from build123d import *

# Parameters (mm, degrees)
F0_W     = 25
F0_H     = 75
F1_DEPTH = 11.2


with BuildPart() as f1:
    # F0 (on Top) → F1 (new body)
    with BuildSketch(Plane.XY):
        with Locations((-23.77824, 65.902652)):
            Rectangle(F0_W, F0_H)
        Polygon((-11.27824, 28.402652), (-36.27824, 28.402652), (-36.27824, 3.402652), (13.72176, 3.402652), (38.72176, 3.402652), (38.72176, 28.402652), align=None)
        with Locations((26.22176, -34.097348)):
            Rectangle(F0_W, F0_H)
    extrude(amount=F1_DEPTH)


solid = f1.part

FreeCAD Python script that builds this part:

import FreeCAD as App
import Part
import Sketcher

V = App.Vector
Q = App.Units.Quantity

doc = App.newDocument("Part")
body = doc.addObject("PartDesign::Body", "Body")

sketch1 = body.newObject("Sketcher::SketchObject", "Sketch")
sketch1.AttachmentSupport = (doc.getObject("XY_Plane"), [""])
sketch1.MapMode = "FlatFace"
sketch1.addGeometry(Part.LineSegment(V(-36, 103, 0), V(-36, 3, 0)), False)
sketch1.addGeometry(Part.LineSegment(V(-36, 3, 0), V(14, 3, 0)), False)
sketch1.addGeometry(Part.LineSegment(V(14, 3, 0), V(14, -72, 0)), False)
sketch1.addGeometry(Part.LineSegment(V(14, -72, 0), V(39, -72, 0)), False)
sketch1.addGeometry(Part.LineSegment(V(39, -72, 0), V(39, 28, 0)), False)
sketch1.addGeometry(Part.LineSegment(V(39, 28, 0), V(-11, 28, 0)), False)
sketch1.addGeometry(Part.LineSegment(V(-11, 28, 0), V(-11, 103, 0)), False)
sketch1.addGeometry(Part.LineSegment(V(-11, 103, 0), V(-36, 103, 0)), False)
sketch1.addConstraint(Sketcher.Constraint("Coincident", 0, 2, 1, 1))
sketch1.addConstraint(Sketcher.Constraint("Coincident", 1, 2, 2, 1))
sketch1.addConstraint(Sketcher.Constraint("Coincident", 2, 2, 3, 1))
sketch1.addConstraint(Sketcher.Constraint("Coincident", 3, 2, 4, 1))
sketch1.addConstraint(Sketcher.Constraint("Coincident", 4, 2, 5, 1))
sketch1.addConstraint(Sketcher.Constraint("Coincident", 5, 2, 6, 1))
sketch1.addConstraint(Sketcher.Constraint("Coincident", 6, 2, 7, 1))
sketch1.addConstraint(Sketcher.Constraint("Coincident", 7, 2, 0, 1))
sketch1.addConstraint(Sketcher.Constraint("Vertical", 0))
sketch1.addConstraint(Sketcher.Constraint("Horizontal", 1))
sketch1.addConstraint(Sketcher.Constraint("Vertical", 2))
sketch1.addConstraint(Sketcher.Constraint("Horizontal", 3))
sketch1.addConstraint(Sketcher.Constraint("Vertical", 4))
sketch1.addConstraint(Sketcher.Constraint("Horizontal", 5))
sketch1.addConstraint(Sketcher.Constraint("Vertical", 6))
sketch1.addConstraint(Sketcher.Constraint("Horizontal", 7))
sketch1.addConstraint(Sketcher.Constraint("Equal", 1, 5))
sketch1.addConstraint(Sketcher.Constraint("Equal", 0, 4))
sketch1.addConstraint(Sketcher.Constraint("DistanceX", 1, 1, 1, 2, Q("50 mm")))
sketch1.addConstraint(Sketcher.Constraint("DistanceX", 3, 1, 3, 2, Q("25 mm")))
sketch1.addConstraint(Sketcher.Constraint("DistanceY", 0, 2, 0, 1, Q("100 mm")))
sketch1.addConstraint(Sketcher.Constraint("DistanceY", 2, 2, 2, 1, Q("75 mm")))
sketch1.addConstraint(Sketcher.Constraint("DistanceX", 0, 2, -1, 1, Q("36.27824 mm")))
sketch1.addConstraint(Sketcher.Constraint("DistanceY", -1, 1, 0, 2, Q("3.402652 mm")))
pad1 = body.newObject("PartDesign::Pad", "Pad")
pad1.Profile = sketch1
pad1.Length = 11.2

doc.recompute()
